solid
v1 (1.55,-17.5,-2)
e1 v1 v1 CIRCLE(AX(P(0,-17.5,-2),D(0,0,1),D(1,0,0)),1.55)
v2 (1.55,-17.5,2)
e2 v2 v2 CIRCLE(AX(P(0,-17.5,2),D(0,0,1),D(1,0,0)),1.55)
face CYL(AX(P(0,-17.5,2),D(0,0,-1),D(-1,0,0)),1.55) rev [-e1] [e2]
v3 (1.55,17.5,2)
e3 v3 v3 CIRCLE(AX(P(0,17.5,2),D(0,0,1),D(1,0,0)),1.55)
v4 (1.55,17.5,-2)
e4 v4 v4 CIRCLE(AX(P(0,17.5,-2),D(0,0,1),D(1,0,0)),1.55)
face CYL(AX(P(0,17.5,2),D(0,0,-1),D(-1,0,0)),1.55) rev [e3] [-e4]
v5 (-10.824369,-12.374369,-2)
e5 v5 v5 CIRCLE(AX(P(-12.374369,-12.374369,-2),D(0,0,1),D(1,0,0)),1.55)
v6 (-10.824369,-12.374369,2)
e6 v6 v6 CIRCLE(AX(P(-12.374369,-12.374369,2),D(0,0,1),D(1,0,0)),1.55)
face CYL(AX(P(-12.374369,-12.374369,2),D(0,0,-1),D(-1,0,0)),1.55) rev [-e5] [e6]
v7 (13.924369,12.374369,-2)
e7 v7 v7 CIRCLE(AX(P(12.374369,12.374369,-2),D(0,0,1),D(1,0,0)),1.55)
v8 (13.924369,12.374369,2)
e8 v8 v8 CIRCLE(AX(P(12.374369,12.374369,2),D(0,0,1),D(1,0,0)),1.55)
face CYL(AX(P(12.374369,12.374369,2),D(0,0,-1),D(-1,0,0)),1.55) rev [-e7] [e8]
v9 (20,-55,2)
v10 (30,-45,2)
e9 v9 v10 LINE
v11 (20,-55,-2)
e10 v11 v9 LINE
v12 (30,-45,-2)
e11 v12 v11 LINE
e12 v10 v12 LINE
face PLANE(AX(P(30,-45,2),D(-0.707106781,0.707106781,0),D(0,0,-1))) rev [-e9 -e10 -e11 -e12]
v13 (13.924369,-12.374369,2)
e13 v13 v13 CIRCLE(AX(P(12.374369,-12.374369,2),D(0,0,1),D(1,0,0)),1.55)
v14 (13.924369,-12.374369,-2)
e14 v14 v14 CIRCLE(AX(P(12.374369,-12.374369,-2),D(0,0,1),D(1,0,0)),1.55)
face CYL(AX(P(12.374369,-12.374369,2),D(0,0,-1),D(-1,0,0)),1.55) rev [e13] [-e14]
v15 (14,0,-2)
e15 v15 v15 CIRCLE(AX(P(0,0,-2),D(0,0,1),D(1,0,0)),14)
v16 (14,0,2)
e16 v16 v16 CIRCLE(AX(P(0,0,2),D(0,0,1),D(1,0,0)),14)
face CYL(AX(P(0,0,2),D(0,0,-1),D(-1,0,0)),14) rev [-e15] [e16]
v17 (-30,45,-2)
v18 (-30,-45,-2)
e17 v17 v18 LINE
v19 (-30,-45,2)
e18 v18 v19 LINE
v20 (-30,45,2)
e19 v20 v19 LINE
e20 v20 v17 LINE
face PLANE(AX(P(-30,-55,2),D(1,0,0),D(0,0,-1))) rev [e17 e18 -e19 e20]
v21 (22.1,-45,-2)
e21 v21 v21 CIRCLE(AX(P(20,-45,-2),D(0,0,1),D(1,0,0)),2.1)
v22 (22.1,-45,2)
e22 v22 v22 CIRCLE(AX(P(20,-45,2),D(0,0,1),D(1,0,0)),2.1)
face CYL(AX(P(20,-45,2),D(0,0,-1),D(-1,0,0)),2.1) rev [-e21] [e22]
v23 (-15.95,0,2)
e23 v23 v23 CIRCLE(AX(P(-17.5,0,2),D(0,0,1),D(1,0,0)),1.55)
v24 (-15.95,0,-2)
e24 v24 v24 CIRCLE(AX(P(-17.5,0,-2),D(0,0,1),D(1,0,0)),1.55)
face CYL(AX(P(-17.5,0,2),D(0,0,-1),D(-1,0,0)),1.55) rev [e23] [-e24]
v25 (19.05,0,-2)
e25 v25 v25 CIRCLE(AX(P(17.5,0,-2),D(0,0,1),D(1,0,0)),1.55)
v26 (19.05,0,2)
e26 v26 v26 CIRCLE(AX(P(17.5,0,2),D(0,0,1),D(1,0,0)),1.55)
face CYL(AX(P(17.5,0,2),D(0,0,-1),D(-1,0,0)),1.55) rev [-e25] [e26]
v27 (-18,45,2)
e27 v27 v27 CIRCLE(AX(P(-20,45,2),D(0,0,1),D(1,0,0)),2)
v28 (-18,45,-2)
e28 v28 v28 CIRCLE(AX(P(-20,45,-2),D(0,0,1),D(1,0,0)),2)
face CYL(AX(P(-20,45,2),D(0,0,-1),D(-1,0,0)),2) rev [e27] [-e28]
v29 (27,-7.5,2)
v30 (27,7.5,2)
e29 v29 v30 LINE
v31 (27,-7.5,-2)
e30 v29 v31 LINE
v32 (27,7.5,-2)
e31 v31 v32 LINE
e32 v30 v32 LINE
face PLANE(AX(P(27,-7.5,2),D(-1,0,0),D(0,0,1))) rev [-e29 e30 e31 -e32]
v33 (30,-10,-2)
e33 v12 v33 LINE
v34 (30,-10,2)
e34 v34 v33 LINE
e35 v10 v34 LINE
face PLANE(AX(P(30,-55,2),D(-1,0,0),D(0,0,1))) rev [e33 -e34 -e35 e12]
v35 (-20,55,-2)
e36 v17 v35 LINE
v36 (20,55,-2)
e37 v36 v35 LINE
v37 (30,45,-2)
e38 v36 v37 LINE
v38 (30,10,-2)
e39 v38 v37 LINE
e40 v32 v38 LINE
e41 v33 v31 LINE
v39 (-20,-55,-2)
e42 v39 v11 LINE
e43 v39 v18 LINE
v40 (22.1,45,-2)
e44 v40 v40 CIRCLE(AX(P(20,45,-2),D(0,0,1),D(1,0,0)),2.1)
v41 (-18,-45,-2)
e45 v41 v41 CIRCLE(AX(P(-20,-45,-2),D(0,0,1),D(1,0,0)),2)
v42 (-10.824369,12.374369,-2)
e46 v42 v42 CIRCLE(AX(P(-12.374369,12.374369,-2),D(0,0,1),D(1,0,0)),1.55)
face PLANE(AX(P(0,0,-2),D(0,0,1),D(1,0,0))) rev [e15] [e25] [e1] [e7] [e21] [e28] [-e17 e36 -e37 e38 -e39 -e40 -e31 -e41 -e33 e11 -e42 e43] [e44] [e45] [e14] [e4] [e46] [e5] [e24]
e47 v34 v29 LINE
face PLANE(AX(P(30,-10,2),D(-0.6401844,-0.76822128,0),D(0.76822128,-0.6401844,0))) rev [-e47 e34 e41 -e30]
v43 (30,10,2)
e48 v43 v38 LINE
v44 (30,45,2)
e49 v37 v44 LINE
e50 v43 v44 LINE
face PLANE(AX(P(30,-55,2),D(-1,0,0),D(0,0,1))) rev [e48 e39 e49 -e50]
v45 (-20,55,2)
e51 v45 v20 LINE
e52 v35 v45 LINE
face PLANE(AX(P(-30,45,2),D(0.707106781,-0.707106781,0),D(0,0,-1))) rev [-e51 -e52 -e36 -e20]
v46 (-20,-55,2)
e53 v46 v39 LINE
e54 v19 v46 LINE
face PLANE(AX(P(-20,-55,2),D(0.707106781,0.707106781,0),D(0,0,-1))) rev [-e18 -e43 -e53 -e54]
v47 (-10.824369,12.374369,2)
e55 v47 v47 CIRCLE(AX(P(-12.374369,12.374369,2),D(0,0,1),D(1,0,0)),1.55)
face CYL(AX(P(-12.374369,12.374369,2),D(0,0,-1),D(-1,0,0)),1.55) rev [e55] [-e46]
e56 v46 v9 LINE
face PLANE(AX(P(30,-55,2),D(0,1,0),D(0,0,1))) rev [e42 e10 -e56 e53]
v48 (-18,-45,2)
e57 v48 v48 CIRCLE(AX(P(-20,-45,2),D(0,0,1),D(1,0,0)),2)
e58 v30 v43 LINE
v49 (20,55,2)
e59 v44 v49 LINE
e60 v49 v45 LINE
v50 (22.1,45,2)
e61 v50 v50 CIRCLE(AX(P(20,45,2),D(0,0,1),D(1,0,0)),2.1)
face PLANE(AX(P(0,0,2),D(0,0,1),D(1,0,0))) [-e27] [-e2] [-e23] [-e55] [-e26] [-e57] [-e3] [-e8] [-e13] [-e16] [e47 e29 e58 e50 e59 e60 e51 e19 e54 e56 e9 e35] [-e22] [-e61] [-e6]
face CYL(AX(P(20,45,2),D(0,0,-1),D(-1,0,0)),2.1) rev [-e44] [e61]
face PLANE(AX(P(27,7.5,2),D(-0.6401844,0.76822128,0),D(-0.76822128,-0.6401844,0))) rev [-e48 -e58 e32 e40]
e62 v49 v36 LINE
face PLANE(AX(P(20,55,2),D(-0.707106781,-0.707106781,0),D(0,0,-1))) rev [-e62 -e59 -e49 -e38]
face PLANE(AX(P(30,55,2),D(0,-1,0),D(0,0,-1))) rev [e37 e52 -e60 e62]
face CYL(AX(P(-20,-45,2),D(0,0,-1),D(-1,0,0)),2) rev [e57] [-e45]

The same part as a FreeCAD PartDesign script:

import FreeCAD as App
import Part
import Sketcher


def edges_at(feature, points):
    """Names of the edges that pass closest to the given points."""
    edges = feature.Shape.Edges
    near = lambda p: min(range(len(edges)), key=lambda i: edges[i].distToShape(Part.Vertex(*p))[0])
    return sorted({f"Edge{near(p) + 1}" for p in points})

doc = App.newDocument("Part")
body = doc.addObject("PartDesign::Body", "Body")

# Sketch on XY plane
sketch1 = doc.addObject("Sketcher::SketchObject", "Sketch")
body.addObject(sketch1)
sketch1.AttachmentSupport = (doc.XY_Plane, [""])
sketch1.MapMode = "FlatFace"
sketch1.addGeometry([
    Part.LineSegment(App.Vector(-30, 55, 0), App.Vector(-30, -55, 0)),  # 0
    Part.LineSegment(App.Vector(-30, -55, 0), App.Vector(30, -55, 0)),  # 1
    Part.LineSegment(App.Vector(30, -55, 0), App.Vector(30, 55, 0)),  # 2
    Part.LineSegment(App.Vector(30, 55, 0), App.Vector(-30, 55, 0)),  # 3
    Part.Circle(App.Vector(-20, -45, 0), App.Vector(0, 0, 1), 2),  # 4
    Part.Circle(App.Vector(-12.4, -12.4, 0), App.Vector(0, 0, 1), 1.6),  # 5
    Part.Circle(App.Vector(0, -17.5, 0), App.Vector(0, 0, 1), 1.6),  # 6
    Part.Circle(App.Vector(20, -45, 0), App.Vector(0, 0, 1), 2.1),  # 7
    Part.Circle(App.Vector(12.4, -12.4, 0), App.Vector(0, 0, 1), 1.6),  # 8
    Part.Circle(App.Vector(-17.5, 0, 0), App.Vector(0, 0, 1), 1.6),  # 9
    Part.Circle(App.Vector(-12.4, 12.4, 0), App.Vector(0, 0, 1), 1.6),  # 10
    Part.Circle(App.Vector(0, 0, 0), App.Vector(0, 0, 1), 14),  # 11
    Part.Circle(App.Vector(0, 17.5, 0), App.Vector(0, 0, 1), 1.6),  # 12
    Part.Circle(App.Vector(-20, 45, 0), App.Vector(0, 0, 1), 2),  # 13
    Part.Circle(App.Vector(17.5, 0, 0), App.Vector(0, 0, 1), 1.6),  # 14
    Part.Circle(App.Vector(12.4, 12.4, 0), App.Vector(0, 0, 1), 1.6),  # 15
    Part.Circle(App.Vector(20, 45, 0), App.Vector(0, 0, 1), 2.1),  # 16
], False)
sketch1.addConstraint([
    Sketcher.Constraint("Coincident", 0, 2, 1, 1),
    Sketcher.Constraint("Coincident", 1, 2, 2, 1),
    Sketcher.Constraint("Coincident", 2, 2, 3, 1),
    Sketcher.Constraint("Coincident", 3, 2, 0, 1),
    Sketcher.Constraint("Vertical", 0),
    Sketcher.Constraint("Horizontal", 1),
    Sketcher.Constraint("Vertical", 2),
    Sketcher.Constraint("Horizontal", 3),
    Sketcher.Constraint("Coincident", 11, 3, -1, 1),
    Sketcher.Constraint("Equal", 5, 6),
    Sketcher.Constraint("Equal", 6, 8),
    Sketcher.Constraint("Equal", 8, 9),
    Sketcher.Constraint("Equal", 9, 10),
    Sketcher.Constraint("Equal", 10, 12),
    Sketcher.Constraint("Equal", 4, 13),
    Sketcher.Constraint("Equal", 12, 14),
    Sketcher.Constraint("Equal", 14, 15),
    Sketcher.Constraint("Equal", 7, 16),
    Sketcher.Constraint("Symmetric", 8, 3, 10, 3, -1, 1),
    Sketcher.Constraint("Symmetric", 6, 3, 12, 3, -1, 1),
    Sketcher.Constraint("Symmetric", 7, 3, 13, 3, -1, 1),
    Sketcher.Constraint("Symmetric", 9, 3, 14, 3, -1, 1),
    Sketcher.Constraint("Symmetric", 5, 3, 15, 3, -1, 1),
    Sketcher.Constraint("Symmetric", 4, 3, 16, 3, -1, 1),
    Sketcher.Constraint("Symmetric", 0, 2, 2, 2, -1, 1),
    Sketcher.Constraint("Symmetric", 4, 3, 7, 3, -2),
    Sketcher.Constraint("Symmetric", 5, 3, 8, 3, -2),
    Sketcher.Constraint("PointOnObject", 6, 3, -2),
    Sketcher.Constraint("PointOnObject", 9, 3, -1),
    Sketcher.Constraint("Diameter", 4, 4.0),
    Sketcher.Constraint("Diameter", 11, 28.0),
    Sketcher.Constraint("Diameter", 5, 3.1),
    Sketcher.Constraint("Diameter", 7, 4.2),
    Sketcher.Constraint("DistanceX", 1, 1, 1, 2, 60.0),
    Sketcher.Constraint("DistanceY", 0, 2, 0, 1, 110.0),
    Sketcher.Constraint("DistanceX", 4, 3, -1, 1, 20.0),
    Sketcher.Constraint("DistanceY", 4, 3, -1, 1, 45.0),
    Sketcher.Constraint("DistanceY", 6, 3, -1, 1, 17.5),
    Sketcher.Constraint("DistanceX", 9, 3, -1, 1, 17.5),
    Sketcher.Constraint("DistanceX", 5, 3, -1, 1, 12.374369),
    Sketcher.Constraint("DistanceY", 5, 3, -1, 1, 12.374369),
])
pad1 = doc.addObject("PartDesign::Pad", "Pad")
body.addObject(pad1)
pad1.Profile = sketch1
pad1.Length = 4
pad1.Midplane = True
doc.recompute()

chamfer = doc.addObject("PartDesign::Chamfer", "Chamfer")
body.addObject(chamfer)
chamfer.Base = (pad1, edges_at(pad1, [
    (-30, 55, 0),
    (30, 55, 0),
    (30, -55, 0),
    (-30, -55, 0),
]))
chamfer.Size = 10

# Sketch on XY plane
sketch2 = doc.addObject("Sketcher::SketchObject", "Sketch001")
body.addObject(sketch2)
sketch2.AttachmentSupport = (doc.XY_Plane, [""])
sketch2.MapMode = "FlatFace"
sketch2.AttachmentOffset = App.Placement(App.Vector(0, 0, -2), App.Rotation())
sketch2.addGeometry([
    Part.LineSegment(App.Vector(30, -10, 0), App.Vector(27, -7.5, 0)),
    Part.LineSegment(App.Vector(27, -7.5, 0), App.Vector(27, 7.5, 0)),
    Part.LineSegment(App.Vector(27, 7.5, 0), App.Vector(30, 10, 0)),
    Part.LineSegment(App.Vector(30, 10, 0), App.Vector(30, -10, 0)),
], False)
sketch2.addConstraint([
    Sketcher.Constraint("Coincident", 0, 2, 1, 1),
    Sketcher.Constraint("Coincident", 1, 2, 2, 1),
    Sketcher.Constraint("Coincident", 2, 2, 3, 1),
    Sketcher.Constraint("Coincident", 3, 2, 0, 1),
    Sketcher.Constraint("Vertical", 1),
    Sketcher.Constraint("Vertical", 3),
    Sketcher.Constraint("Equal", 0, 2),
    Sketcher.Constraint("DistanceY", 1, 1, 1, 2, 15.0),
    Sketcher.Constraint("DistanceY", 3, 2, 3, 1, 20.0),
    Sketcher.Constraint("DistanceX", -1, 1, 0, 2, 27.0),
    Sketcher.Constraint("DistanceX", -1, 1, 2, 2, 30.0),
    Sketcher.Constraint("DistanceY", -1, 1, 2, 2, 10.0),
])
pocket1 = doc.addObject("PartDesign::Pocket", "Pocket")
body.addObject(pocket1)
pocket1.Profile = sketch2
pocket1.Type = "ThroughAll"
pocket1.Reversed = True

doc.recompute()
